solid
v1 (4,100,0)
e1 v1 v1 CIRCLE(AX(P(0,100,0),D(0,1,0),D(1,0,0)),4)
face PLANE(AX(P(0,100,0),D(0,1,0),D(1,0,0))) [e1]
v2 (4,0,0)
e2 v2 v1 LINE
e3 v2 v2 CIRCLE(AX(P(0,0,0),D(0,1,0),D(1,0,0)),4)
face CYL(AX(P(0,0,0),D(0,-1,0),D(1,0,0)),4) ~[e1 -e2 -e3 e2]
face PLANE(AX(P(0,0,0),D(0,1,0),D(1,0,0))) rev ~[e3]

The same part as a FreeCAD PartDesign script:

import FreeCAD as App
import Part
import Sketcher

V = App.Vector

doc = App.newDocument("Part")
params = doc.addObject("Spreadsheet::Sheet", "Params")
for row, (alias, value) in enumerate([
    ("sketch1_diameter", "8 mm"),
    ("pad1_length", "100 mm"),
], start=1):
    params.set(f"A{row}", alias)
    params.set(f"B{row}", "=" + value)
    params.setAlias(f"B{row}", alias)

body = doc.addObject("PartDesign::Body", "Body")

sketch1 = body.newObject("Sketcher::SketchObject", "Sketch")
sketch1.AttachmentSupport = (doc.getObject("XZ_Plane"), [""])
sketch1.MapMode = "FlatFace"
sketch1.addGeometry(Part.Circle(V(0, 0, 0), V(0, 0, 1), 4), False)
sketch1.addConstraint([
    Sketcher.Constraint("Coincident", 0, 3, -1, 1),
    Sketcher.Constraint("Diameter", 0, 8.0),
])
sketch1.setExpression("Constraints[1]", "Params.sketch1_diameter")
pad1 = body.newObject("PartDesign::Pad", "Pad")
pad1.Profile = sketch1
pad1.setExpression("Length", "Params.pad1_length")
pad1.Reversed = True

doc.recompute()
